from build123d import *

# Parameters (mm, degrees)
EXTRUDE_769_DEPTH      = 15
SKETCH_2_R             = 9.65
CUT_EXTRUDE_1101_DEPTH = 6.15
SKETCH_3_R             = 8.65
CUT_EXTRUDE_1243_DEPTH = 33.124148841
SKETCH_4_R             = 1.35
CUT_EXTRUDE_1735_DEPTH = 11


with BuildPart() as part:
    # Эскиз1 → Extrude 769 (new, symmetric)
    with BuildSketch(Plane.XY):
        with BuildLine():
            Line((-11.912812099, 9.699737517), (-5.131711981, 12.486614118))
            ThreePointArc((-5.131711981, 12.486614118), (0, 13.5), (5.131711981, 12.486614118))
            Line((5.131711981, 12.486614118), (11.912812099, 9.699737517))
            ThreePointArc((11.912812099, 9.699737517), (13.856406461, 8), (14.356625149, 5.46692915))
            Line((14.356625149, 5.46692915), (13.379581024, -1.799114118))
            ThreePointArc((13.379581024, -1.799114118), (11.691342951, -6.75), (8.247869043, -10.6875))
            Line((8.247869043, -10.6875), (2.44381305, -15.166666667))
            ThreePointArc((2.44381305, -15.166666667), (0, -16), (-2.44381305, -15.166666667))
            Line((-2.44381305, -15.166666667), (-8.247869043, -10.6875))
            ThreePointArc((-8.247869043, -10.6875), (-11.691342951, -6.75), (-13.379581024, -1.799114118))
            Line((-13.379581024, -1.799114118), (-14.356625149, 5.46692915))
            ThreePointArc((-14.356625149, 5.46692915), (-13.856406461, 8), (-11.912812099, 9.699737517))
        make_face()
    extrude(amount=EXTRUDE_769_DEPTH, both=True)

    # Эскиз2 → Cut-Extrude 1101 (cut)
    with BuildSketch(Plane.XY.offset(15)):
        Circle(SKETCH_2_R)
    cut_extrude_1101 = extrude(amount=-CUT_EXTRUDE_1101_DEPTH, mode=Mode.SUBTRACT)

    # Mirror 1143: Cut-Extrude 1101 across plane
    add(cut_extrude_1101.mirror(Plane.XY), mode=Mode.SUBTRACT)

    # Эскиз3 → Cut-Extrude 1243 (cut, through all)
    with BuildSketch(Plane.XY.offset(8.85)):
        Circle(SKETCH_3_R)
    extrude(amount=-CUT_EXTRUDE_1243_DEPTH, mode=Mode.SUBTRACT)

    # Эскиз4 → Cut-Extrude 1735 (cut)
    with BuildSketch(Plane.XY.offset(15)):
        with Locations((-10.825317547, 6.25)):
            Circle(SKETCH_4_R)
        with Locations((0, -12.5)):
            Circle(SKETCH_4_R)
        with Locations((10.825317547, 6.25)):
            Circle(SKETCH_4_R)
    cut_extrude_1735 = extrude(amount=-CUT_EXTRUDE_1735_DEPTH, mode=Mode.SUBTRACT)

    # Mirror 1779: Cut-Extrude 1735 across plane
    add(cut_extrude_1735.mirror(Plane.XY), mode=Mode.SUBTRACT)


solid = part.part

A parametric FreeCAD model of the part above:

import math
import FreeCAD as App
import Part
import Sketcher
from FreeCAD import Vector
Q = App.Units.Quantity

doc = App.newDocument("Part")
body = doc.addObject("PartDesign::Body", "Body")

# Sketch on XY plane
sketch1 = doc.addObject("Sketcher::SketchObject", "Sketch")
body.addObject(sketch1)
sketch1.AttachmentSupport = (doc.XY_Plane, [""])
sketch1.MapMode = "FlatFace"
sketch1.addGeometry([
    Part.LineSegment(Vector(-5.1, 12.5, 0), Vector(-11.9, 9.7, 0)),  # 0
    Part.ArcOfCircle(Part.Circle(Vector(-10.4, 6, 0), Vector(0, 0, 1), 4), math.radians(112), math.radians(188)),  # 1
    Part.LineSegment(Vector(-14.4, 5.5, 0), Vector(-13.4, -1.8, 0)),  # 2
    Part.ArcOfCircle(Part.Circle(Vector(0, 0, 0), Vector(0, 0, 1), 13.5), math.radians(-172), math.radians(-128)),  # 3
    Part.LineSegment(Vector(-8.2, -10.7, 0), Vector(-2.4, -15.2, 0)),  # 4
    Part.ArcOfCircle(Part.Circle(Vector(0, -12, 0), Vector(0, 0, 1), 4), math.radians(-128), math.radians(-52)),  # 5
    Part.LineSegment(Vector(2.4, -15.2, 0), Vector(8.2, -10.7, 0)),  # 6
    Part.ArcOfCircle(Part.Circle(Vector(0, 0, 0), Vector(0, 0, 1), 13.5), math.radians(-52), math.radians(-8)),  # 7
    Part.LineSegment(Vector(13.4, -1.8, 0), Vector(14.4, 5.5, 0)),  # 8
    Part.ArcOfCircle(Part.Circle(Vector(10.4, 6, 0), Vector(0, 0, 1), 4), math.radians(-8), math.radians(68)),  # 9
    Part.LineSegment(Vector(11.9, 9.7, 0), Vector(5.1, 12.5, 0)),  # 10
    Part.ArcOfCircle(Part.Circle(Vector(0, 0, 0), Vector(0, 0, 1), 13.5), math.radians(68), math.radians(112)),  # 11
], False)
sketch1.addConstraint([
    Sketcher.Constraint("Tangent", 0, 2, 1, 1),
    Sketcher.Constraint("Tangent", 1, 2, 2, 1),
    Sketcher.Constraint("Tangent", 2, 2, 3, 1),
    Sketcher.Constraint("Tangent", 3, 2, 4, 1),
    Sketcher.Constraint("Tangent", 4, 2, 5, 1),
    Sketcher.Constraint("Tangent", 5, 2, 6, 1),
    Sketcher.Constraint("Tangent", 6, 2, 7, 1),
    Sketcher.Constraint("Tangent", 7, 2, 8, 1),
    Sketcher.Constraint("Tangent", 8, 2, 9, 1),
    Sketcher.Constraint("Tangent", 9, 2, 10, 1),
    Sketcher.Constraint("Tangent", 10, 2, 11, 1),
    Sketcher.Constraint("Tangent", 11, 2, 0, 1),
    Sketcher.Constraint("Coincident", 3, 3, -1, 1),
    Sketcher.Constraint("Coincident", 7, 3, -1, 1),
    Sketcher.Constraint("Coincident", 11, 3, -1, 1),
    Sketcher.Constraint("Equal", 1, 5),
    Sketcher.Constraint("Equal", 3, 7),
    Sketcher.Constraint("Equal", 5, 9),
    Sketcher.Constraint("Equal", 7, 11),
    Sketcher.Constraint("Symmetric", 1, 3, 9, 3, -2),
    Sketcher.Constraint("PointOnObject", 5, 3, -2),
    Sketcher.Constraint("Equal", 2, 4),
    Sketcher.Constraint("Radius", 1, Q("4 mm")),
    Sketcher.Constraint("Radius", 3, Q("13.5 mm")),
    Sketcher.Constraint("DistanceY", -1, 1, 1, 3, Q("6 mm")),
    Sketcher.Constraint("DistanceY", 5, 3, -1, 1, Q("12 mm")),
])
pad1 = doc.addObject("PartDesign::Pad", "Pad")
body.addObject(pad1)
pad1.Profile = sketch1
pad1.Length = 30
pad1.Midplane = True

# Sketch on XY plane
sketch2 = doc.addObject("Sketcher::SketchObject", "Sketch001")
body.addObject(sketch2)
sketch2.AttachmentSupport = (doc.XY_Plane, [""])
sketch2.MapMode = "FlatFace"
sketch2.AttachmentOffset = App.Placement(Vector(0, 0, 15), App.Rotation())
sketch2.addGeometry(Part.Circle(Vector(0, 0, 0), Vector(0, 0, 1), 10), False)
sketch2.addConstraint([
    Sketcher.Constraint("Coincident", 0, 3, -1, 1),
    Sketcher.Constraint("Diameter", 0, Q("19.3 mm")),
])
pocket1 = doc.addObject("PartDesign::Pocket", "Pocket")
body.addObject(pocket1)
pocket1.Profile = sketch2
pocket1.Length = 6.15
doc.recompute()

mirrored = doc.addObject("PartDesign::Mirrored", "Mirrored")
body.addObject(mirrored)
mirrored.Originals = [pocket1]
mirrored.MirrorPlane = (doc.XY_Plane, [""])
body.Tip = mirrored

# Sketch on XY plane
sketch3 = doc.addObject("Sketcher::SketchObject", "Sketch002")
body.addObject(sketch3)
sketch3.AttachmentSupport = (doc.XY_Plane, [""])
sketch3.MapMode = "FlatFace"
sketch3.AttachmentOffset = App.Placement(Vector(0, 0, 8.85), App.Rotation())
sketch3.addGeometry(Part.Circle(Vector(0, 0, 0), Vector(0, 0, 1), 9), False)
sketch3.addConstraint([
    Sketcher.Constraint("Coincident", 0, 3, -1, 1),
    Sketcher.Constraint("Diameter", 0, Q("17.3 mm")),
])
pocket2 = doc.addObject("PartDesign::Pocket", "Pocket001")
body.addObject(pocket2)
pocket2.Profile = sketch3
pocket2.Type = "ThroughAll"

# Sketch on XY plane
sketch4 = doc.addObject("Sketcher::SketchObject", "Sketch003")
body.addObject(sketch4)
sketch4.AttachmentSupport = (doc.XY_Plane, [""])
sketch4.MapMode = "FlatFace"
sketch4.AttachmentOffset = App.Placement(Vector(0, 0, 15), App.Rotation())
sketch4.addGeometry([
    Part.Circle(Vector(-10.8, 6.2, 0), Vector(0, 0, 1), 1.4),
    Part.Circle(Vector(0, -12.5, 0), Vector(0, 0, 1), 1.4),
    Part.Circle(Vector(10.8, 6.2, 0), Vector(0, 0, 1), 1.4),
], False)
sketch4.addConstraint([
    Sketcher.Constraint("Equal", 0, 1),
    Sketcher.Constraint("Equal", 1, 2),
    Sketcher.Constraint("Symmetric", 0, 3, 2, 3, -2),
    Sketcher.Constraint("PointOnObject", 1, 3, -2),
    Sketcher.Constraint("Diameter", 0, Q("2.7 mm")),
    Sketcher.Constraint("DistanceY", 1, 3, -1, 1, Q("12.5 mm")),
    Sketcher.Constraint("DistanceY", -1, 1, 0, 3, Q("6.25 mm")),
    Sketcher.Constraint("DistanceX", 0, 3, -1, 1, Q("10.825318 mm")),
])
pocket3 = doc.addObject("PartDesign::Pocket", "Pocket002")
body.addObject(pocket3)
pocket3.Profile = sketch4
pocket3.Length = 11
doc.recompute()

mirrored2 = doc.addObject("PartDesign::Mirrored", "Mirrored001")
body.addObject(mirrored2)
mirrored2.Originals = [pocket3]
mirrored2.MirrorPlane = (doc.XY_Plane, [""])
body.Tip = mirrored2

doc.recompute()
